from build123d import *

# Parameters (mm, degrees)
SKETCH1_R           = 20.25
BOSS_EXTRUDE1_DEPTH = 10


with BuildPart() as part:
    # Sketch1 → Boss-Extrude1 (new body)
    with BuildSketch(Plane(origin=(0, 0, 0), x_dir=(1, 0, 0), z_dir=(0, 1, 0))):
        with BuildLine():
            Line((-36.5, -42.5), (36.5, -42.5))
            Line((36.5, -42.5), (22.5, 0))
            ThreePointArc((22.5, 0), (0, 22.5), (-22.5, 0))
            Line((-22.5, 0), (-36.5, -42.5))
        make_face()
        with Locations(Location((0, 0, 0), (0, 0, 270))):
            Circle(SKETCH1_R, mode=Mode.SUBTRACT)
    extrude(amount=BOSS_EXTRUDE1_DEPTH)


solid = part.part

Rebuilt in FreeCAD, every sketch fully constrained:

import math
import FreeCAD as App
import Part
import Sketcher

V = App.Vector

doc = App.newDocument("Part")
body = doc.addObject("PartDesign::Body", "Body")

# Sketch on XZ plane
sketch1 = body.newObject("Sketcher::SketchObject", "Sketch")
sketch1.AttachmentSupport = (doc.getObject("XZ_Plane"), [""])
sketch1.MapMode = "FlatFace"
sketch1.addGeometry([
    Part.LineSegment(V(-36.5, 42.5, 0), V(36.5, 42.5, 0)),  # 0
    Part.LineSegment(V(36.5, 42.5, 0), V(22.5, 0, 0)),  # 1
    Part.ArcOfCircle(Part.Circle(V(0, 0, 0), V(0, 0, 1), 22.5), math.radians(180), math.radians(360)),  # 2
    Part.LineSegment(V(-22.5, 0, 0), V(-36.5, 42.5, 0)),  # 3
    Part.Circle(V(0, 0, 0), V(0, 0, 1), 20.25),  # 4
], False)
sketch1.addConstraint([
    Sketcher.Constraint("Coincident", 0, 2, 1, 1),
    Sketcher.Constraint("Coincident", 1, 2, 2, 2),
    Sketcher.Constraint("Coincident", 2, 1, 3, 1),
    Sketcher.Constraint("Coincident", 3, 2, 0, 1),
    Sketcher.Constraint("Horizontal", 0),
    Sketcher.Constraint("Coincident", 2, 3, -1, 1),
    Sketcher.Constraint("Coincident", 4, 3, -1, 1),
    Sketcher.Constraint("PointOnObject", 1, 2, -1),
    Sketcher.Constraint("PointOnObject", 2, 1, -1),
    Sketcher.Constraint("Equal", 1, 3),
    Sketcher.Constraint("Diameter", 4, 40.5),
    Sketcher.Constraint("Radius", 2, 22.5),
    Sketcher.Constraint("DistanceX", 0, 1, 0, 2, 73.0),
    Sketcher.Constraint("DistanceY", -1, 1, 0, 2, 42.5),
])
pad1 = body.newObject("PartDesign::Pad", "Pad")
pad1.Profile = sketch1
pad1.Length = 10
pad1.Reversed = True

doc.recompute()
